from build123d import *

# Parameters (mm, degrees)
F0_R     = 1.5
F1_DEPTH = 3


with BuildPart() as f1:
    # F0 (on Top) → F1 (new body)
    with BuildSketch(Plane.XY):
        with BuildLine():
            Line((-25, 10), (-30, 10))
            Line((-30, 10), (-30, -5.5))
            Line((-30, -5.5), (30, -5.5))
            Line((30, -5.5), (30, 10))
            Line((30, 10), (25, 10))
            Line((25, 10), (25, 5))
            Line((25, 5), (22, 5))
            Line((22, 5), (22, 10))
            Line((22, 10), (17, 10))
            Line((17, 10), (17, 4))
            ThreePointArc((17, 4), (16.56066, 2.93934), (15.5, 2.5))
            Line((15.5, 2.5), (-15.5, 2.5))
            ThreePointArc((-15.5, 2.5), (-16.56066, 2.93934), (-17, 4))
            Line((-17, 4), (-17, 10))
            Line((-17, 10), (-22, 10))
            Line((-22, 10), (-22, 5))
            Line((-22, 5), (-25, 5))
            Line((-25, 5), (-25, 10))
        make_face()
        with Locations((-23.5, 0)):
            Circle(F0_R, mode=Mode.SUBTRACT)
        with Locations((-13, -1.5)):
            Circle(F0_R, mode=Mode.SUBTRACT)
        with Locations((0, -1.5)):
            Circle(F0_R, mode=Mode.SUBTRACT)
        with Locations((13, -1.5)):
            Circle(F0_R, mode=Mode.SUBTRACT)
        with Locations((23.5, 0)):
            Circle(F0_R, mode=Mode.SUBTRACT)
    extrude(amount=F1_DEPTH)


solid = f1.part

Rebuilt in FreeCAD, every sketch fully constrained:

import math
import FreeCAD as App
import Part
import Sketcher
from FreeCAD import Vector

doc = App.newDocument("Part")
params = doc.addObject("Spreadsheet::Sheet", "Params")
for row, (alias, value) in enumerate([
    ("sketch1_diameter", "3 mm"),
    ("sketch1_width", "5 mm"),
    ("sketch1_width2", "60 mm"),
    ("sketch1_width3", "3 mm"),
    ("sketch1_height", "6 mm"),
    ("pad1_length", "3 mm"),
], start=1):
    params.set(f"A{row}", alias)
    params.set(f"B{row}", "=" + value)
    params.setAlias(f"B{row}", alias)

body = doc.addObject("PartDesign::Body", "Body")

# Sketch on XY plane
sketch1 = body.newObject("Sketcher::SketchObject", "Sketch")
sketch1.AttachmentSupport = (doc.getObject("XY_Plane"), [""])
sketch1.MapMode = "FlatFace"
sketch1.addGeometry(Part.LineSegment(Vector(-25, 10, 0), Vector(-30, 10, 0)), False)
sketch1.addGeometry(Part.LineSegment(Vector(-30, 10, 0), Vector(-30, -5.5, 0)), False)
sketch1.addGeometry(Part.LineSegment(Vector(-30, -5.5, 0), Vector(30, -5.5, 0)), False)
sketch1.addGeometry(Part.LineSegment(Vector(30, -5.5, 0), Vector(30, 10, 0)), False)
sketch1.addGeometry(Part.LineSegment(Vector(30, 10, 0), Vector(25, 10, 0)), False)
sketch1.addGeometry(Part.LineSegment(Vector(25, 10, 0), Vector(25, 5, 0)), False)
sketch1.addGeometry(Part.LineSegment(Vector(25, 5, 0), Vector(22, 5, 0)), False)
sketch1.addGeometry(Part.LineSegment(Vector(22, 5, 0), Vector(22, 10, 0)), False)
sketch1.addGeometry(Part.LineSegment(Vector(22, 10, 0), Vector(17, 10, 0)), False)
sketch1.addGeometry(Part.LineSegment(Vector(17, 10, 0), Vector(17, 4, 0)), False)
sketch1.addGeometry(Part.ArcOfCircle(Part.Circle(Vector(15.499999, 4.000001, 0), Vector(0, 0, 1), 1.500001), math.radians(-89.999978), math.radians(-0.000022)), False)
sketch1.addGeometry(Part.LineSegment(Vector(15.5, 2.5, 0), Vector(-15.5, 2.5, 0)), False)
sketch1.addGeometry(Part.ArcOfCircle(Part.Circle(Vector(-15.499999, 4.000001, 0), Vector(0, 0, 1), 1.500001), math.radians(-179.999978), math.radians(-90.000022)), False)
sketch1.addGeometry(Part.LineSegment(Vector(-17, 4, 0), Vector(-17, 10, 0)), False)
sketch1.addGeometry(Part.LineSegment(Vector(-17, 10, 0), Vector(-22, 10, 0)), False)
sketch1.addGeometry(Part.LineSegment(Vector(-22, 10, 0), Vector(-22, 5, 0)), False)
sketch1.addGeometry(Part.LineSegment(Vector(-22, 5, 0), Vector(-25, 5, 0)), False)
sketch1.addGeometry(Part.LineSegment(Vector(-25, 5, 0), Vector(-25, 10, 0)), False)
sketch1.addGeometry(Part.Circle(Vector(-13, -1.5, 0), Vector(0, 0, 1), 1.5), False)
sketch1.addGeometry(Part.Circle(Vector(0, -1.5, 0), Vector(0, 0, 1), 1.5), False)
sketch1.addGeometry(Part.Circle(Vector(13, -1.5, 0), Vector(0, 0, 1), 1.5), False)
sketch1.addGeometry(Part.Circle(Vector(-23.5, 0, 0), Vector(0, 0, 1), 1.5), False)
sketch1.addGeometry(Part.Circle(Vector(23.5, 0, 0), Vector(0, 0, 1), 1.5), False)
sketch1.addConstraint(Sketcher.Constraint("Coincident", 0, 2, 1, 1))
sketch1.addConstraint(Sketcher.Constraint("Coincident", 1, 2, 2, 1))
sketch1.addConstraint(Sketcher.Constraint("Coincident", 2, 2, 3, 1))
sketch1.addConstraint(Sketcher.Constraint("Coincident", 3, 2, 4, 1))
sketch1.addConstraint(Sketcher.Constraint("Coincident", 4, 2, 5, 1))
sketch1.addConstraint(Sketcher.Constraint("Coincident", 5, 2, 6, 1))
sketch1.addConstraint(Sketcher.Constraint("Coincident", 6, 2, 7, 1))
sketch1.addConstraint(Sketcher.Constraint("Coincident", 7, 2, 8, 1))
sketch1.addConstraint(Sketcher.Constraint("Coincident", 8, 2, 9, 1))
sketch1.addConstraint(Sketcher.Constraint("Tangent", 9, 2, 10, 2))
sketch1.addConstraint(Sketcher.Constraint("Tangent", 10, 1, 11, 1))
sketch1.addConstraint(Sketcher.Constraint("Tangent", 11, 2, 12, 2))
sketch1.addConstraint(Sketcher.Constraint("Tangent", 12, 1, 13, 1))
sketch1.addConstraint(Sketcher.Constraint("Coincident", 13, 2, 14, 1))
sketch1.addConstraint(Sketcher.Constraint("Coincident", 14, 2, 15, 1))
sketch1.addConstraint(Sketcher.Constraint("Coincident", 15, 2, 16, 1))
sketch1.addConstraint(Sketcher.Constraint("Coincident", 16, 2, 17, 1))
sketch1.addConstraint(Sketcher.Constraint("Coincident", 17, 2, 0, 1))
sketch1.addConstraint(Sketcher.Constraint("Horizontal", 0))
sketch1.addConstraint(Sketcher.Constraint("Vertical", 1))
sketch1.addConstraint(Sketcher.Constraint("Horizontal", 2))
sketch1.addConstraint(Sketcher.Constraint("Vertical", 3))
sketch1.addConstraint(Sketcher.Constraint("Horizontal", 4))
sketch1.addConstraint(Sketcher.Constraint("Vertical", 5))
sketch1.addConstraint(Sketcher.Constraint("Horizontal", 6))
sketch1.addConstraint(Sketcher.Constraint("Vertical", 7))
sketch1.addConstraint(Sketcher.Constraint("Horizontal", 8))
sketch1.addConstraint(Sketcher.Constraint("Vertical", 9))
sketch1.addConstraint(Sketcher.Constraint("Horizontal", 11))
sketch1.addConstraint(Sketcher.Constraint("Vertical", 13))
sketch1.addConstraint(Sketcher.Constraint("Horizontal", 14))
sketch1.addConstraint(Sketcher.Constraint("Vertical", 15))
sketch1.addConstraint(Sketcher.Constraint("Horizontal", 16))
sketch1.addConstraint(Sketcher.Constraint("Vertical", 17))
sketch1.addConstraint(Sketcher.Constraint("Equal", 10, 12))
sketch1.addConstraint(Sketcher.Constraint("Equal", 12, 18))
sketch1.addConstraint(Sketcher.Constraint("Equal", 18, 19))
sketch1.addConstraint(Sketcher.Constraint("Equal", 19, 20))
sketch1.addConstraint(Sketcher.Constraint("Equal", 20, 21))
sketch1.addConstraint(Sketcher.Constraint("Equal", 21, 22))
sketch1.addConstraint(Sketcher.Constraint("Symmetric", 21, 3, 22, 3, -1, 1))
sketch1.addConstraint(Sketcher.Constraint("Symmetric", 18, 3, 20, 3, -2))
sketch1.addConstraint(Sketcher.Constraint("Symmetric", 0, 2, 3, 2, -2))
sketch1.addConstraint(Sketcher.Constraint("Symmetric", 8, 2, 13, 2, -2))
sketch1.addConstraint(Sketcher.Constraint("Symmetric", 6, 2, 15, 2, -2))
sketch1.addConstraint(Sketcher.Constraint("PointOnObject", 19, 3, -2))
sketch1.addConstraint(Sketcher.Constraint("PointOnObject", 21, 3, -1))
sketch1.addConstraint(Sketcher.Constraint("Horizontal", 18, 3, 19, 3))
sketch1.addConstraint(Sketcher.Constraint("Horizontal", 4, 2, 7, 2))
sketch1.addConstraint(Sketcher.Constraint("Equal", 0, 4))
sketch1.addConstraint(Sketcher.Constraint("Equal", 4, 8))
sketch1.addConstraint(Sketcher.Constraint("Equal", 14, 5))
sketch1.addConstraint(Sketcher.Constraint("Diameter", 18, 3.0))
sketch1.addConstraint(Sketcher.Constraint("DistanceX", 0, 2, 0, 1, 5.0))
sketch1.addConstraint(Sketcher.Constraint("DistanceX", 2, 1, 2, 2, 60.0))
sketch1.addConstraint(Sketcher.Constraint("DistanceX", 6, 2, 6, 1, 3.0))
sketch1.addConstraint(Sketcher.Constraint("DistanceY", 9, 2, 9, 1, 6.0))
sketch1.addConstraint(Sketcher.Constraint("DistanceY", 1, 2, 1, 1, 15.5))
sketch1.addConstraint(Sketcher.Constraint("DistanceY", -1, 1, 10, 3, 4.000001))
sketch1.addConstraint(Sketcher.Constraint("DistanceX", 18, 3, -1, 1, 13.0))
sketch1.addConstraint(Sketcher.Constraint("DistanceX", 21, 3, 12, 3, 8.000001))
sketch1.addConstraint(Sketcher.Constraint("DistanceY", 1, 2, 18, 3, 4.0))
sketch1.setExpression("Constraints[52]", "Params.sketch1_diameter")
sketch1.setExpression("Constraints[53]", "Params.sketch1_width")
sketch1.setExpression("Constraints[54]", "Params.sketch1_width2")
sketch1.setExpression("Constraints[55]", "Params.sketch1_width3")
sketch1.setExpression("Constraints[56]", "Params.sketch1_height")
pad1 = body.newObject("PartDesign::Pad", "Pad")
pad1.Profile = sketch1
pad1.setExpression("Length", "Params.pad1_length")

doc.recompute()
